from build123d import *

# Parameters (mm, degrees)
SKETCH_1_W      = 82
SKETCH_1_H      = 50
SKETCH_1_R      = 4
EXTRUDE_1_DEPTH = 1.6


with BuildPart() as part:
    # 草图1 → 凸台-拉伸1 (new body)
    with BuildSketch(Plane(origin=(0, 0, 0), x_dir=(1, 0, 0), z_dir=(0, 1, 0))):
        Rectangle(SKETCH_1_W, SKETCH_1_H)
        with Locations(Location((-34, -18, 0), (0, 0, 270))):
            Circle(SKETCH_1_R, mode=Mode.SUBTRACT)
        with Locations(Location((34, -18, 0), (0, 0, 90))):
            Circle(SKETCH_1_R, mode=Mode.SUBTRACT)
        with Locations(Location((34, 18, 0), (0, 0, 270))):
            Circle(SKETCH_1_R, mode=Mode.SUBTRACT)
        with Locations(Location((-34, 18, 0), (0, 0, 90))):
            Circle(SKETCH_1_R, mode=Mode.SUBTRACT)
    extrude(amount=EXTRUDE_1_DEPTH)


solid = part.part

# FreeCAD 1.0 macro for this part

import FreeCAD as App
import Part
import Sketcher

V = App.Vector

doc = App.newDocument("Part")
body = doc.addObject("PartDesign::Body", "Body")

sketch1 = body.newObject("Sketcher::SketchObject", "Sketch")
sketch1.AttachmentSupport = (doc.getObject("XZ_Plane"), [""])
sketch1.MapMode = "FlatFace"
sketch1.addGeometry(Part.LineSegment(V(-41, -25, 0), V(-41, 25, 0)), False)
sketch1.addGeometry(Part.LineSegment(V(-41, 25, 0), V(41, 25, 0)), False)
sketch1.addGeometry(Part.LineSegment(V(41, 25, 0), V(41, -25, 0)), False)
sketch1.addGeometry(Part.LineSegment(V(41, -25, 0), V(-41, -25, 0)), False)
sketch1.addGeometry(Part.Circle(V(-34, 18, 0), V(0, 0, 1), 4), False)
sketch1.addGeometry(Part.Circle(V(34, 18, 0), V(0, 0, 1), 4), False)
sketch1.addGeometry(Part.Circle(V(-34, -18, 0), V(0, 0, 1), 4), False)
sketch1.addGeometry(Part.Circle(V(34, -18, 0), V(0, 0, 1), 4), False)
sketch1.addConstraint(Sketcher.Constraint("Coincident", 0, 2, 1, 1))
sketch1.addConstraint(Sketcher.Constraint("Coincident", 1, 2, 2, 1))
sketch1.addConstraint(Sketcher.Constraint("Coincident", 2, 2, 3, 1))
sketch1.addConstraint(Sketcher.Constraint("Coincident", 3, 2, 0, 1))
sketch1.addConstraint(Sketcher.Constraint("Vertical", 0))
sketch1.addConstraint(Sketcher.Constraint("Horizontal", 1))
sketch1.addConstraint(Sketcher.Constraint("Vertical", 2))
sketch1.addConstraint(Sketcher.Constraint("Horizontal", 3))
sketch1.addConstraint(Sketcher.Constraint("Equal", 4, 5))
sketch1.addConstraint(Sketcher.Constraint("Equal", 5, 6))
sketch1.addConstraint(Sketcher.Constraint("Equal", 6, 7))
sketch1.addConstraint(Sketcher.Constraint("Symmetric", 5, 3, 6, 3, -1, 1))
sketch1.addConstraint(Sketcher.Constraint("Symmetric", 4, 3, 7, 3, -1, 1))
sketch1.addConstraint(Sketcher.Constraint("Symmetric", 0, 2, 2, 2, -1, 1))
sketch1.addConstraint(Sketcher.Constraint("Symmetric", 4, 3, 5, 3, -2))
sketch1.addConstraint(Sketcher.Constraint("Diameter", 4, 8.0))
sketch1.addConstraint(Sketcher.Constraint("DistanceX", 1, 1, 1, 2, 82.0))
sketch1.addConstraint(Sketcher.Constraint("DistanceY", 0, 1, 0, 2, 50.0))
sketch1.addConstraint(Sketcher.Constraint("DistanceX", 4, 3, -1, 1, 34.0))
sketch1.addConstraint(Sketcher.Constraint("DistanceY", -1, 1, 4, 3, 18.0))
pad1 = body.newObject("PartDesign::Pad", "Pad")
pad1.Profile = sketch1
pad1.Length = 1.6
pad1.Reversed = True

doc.recompute()
